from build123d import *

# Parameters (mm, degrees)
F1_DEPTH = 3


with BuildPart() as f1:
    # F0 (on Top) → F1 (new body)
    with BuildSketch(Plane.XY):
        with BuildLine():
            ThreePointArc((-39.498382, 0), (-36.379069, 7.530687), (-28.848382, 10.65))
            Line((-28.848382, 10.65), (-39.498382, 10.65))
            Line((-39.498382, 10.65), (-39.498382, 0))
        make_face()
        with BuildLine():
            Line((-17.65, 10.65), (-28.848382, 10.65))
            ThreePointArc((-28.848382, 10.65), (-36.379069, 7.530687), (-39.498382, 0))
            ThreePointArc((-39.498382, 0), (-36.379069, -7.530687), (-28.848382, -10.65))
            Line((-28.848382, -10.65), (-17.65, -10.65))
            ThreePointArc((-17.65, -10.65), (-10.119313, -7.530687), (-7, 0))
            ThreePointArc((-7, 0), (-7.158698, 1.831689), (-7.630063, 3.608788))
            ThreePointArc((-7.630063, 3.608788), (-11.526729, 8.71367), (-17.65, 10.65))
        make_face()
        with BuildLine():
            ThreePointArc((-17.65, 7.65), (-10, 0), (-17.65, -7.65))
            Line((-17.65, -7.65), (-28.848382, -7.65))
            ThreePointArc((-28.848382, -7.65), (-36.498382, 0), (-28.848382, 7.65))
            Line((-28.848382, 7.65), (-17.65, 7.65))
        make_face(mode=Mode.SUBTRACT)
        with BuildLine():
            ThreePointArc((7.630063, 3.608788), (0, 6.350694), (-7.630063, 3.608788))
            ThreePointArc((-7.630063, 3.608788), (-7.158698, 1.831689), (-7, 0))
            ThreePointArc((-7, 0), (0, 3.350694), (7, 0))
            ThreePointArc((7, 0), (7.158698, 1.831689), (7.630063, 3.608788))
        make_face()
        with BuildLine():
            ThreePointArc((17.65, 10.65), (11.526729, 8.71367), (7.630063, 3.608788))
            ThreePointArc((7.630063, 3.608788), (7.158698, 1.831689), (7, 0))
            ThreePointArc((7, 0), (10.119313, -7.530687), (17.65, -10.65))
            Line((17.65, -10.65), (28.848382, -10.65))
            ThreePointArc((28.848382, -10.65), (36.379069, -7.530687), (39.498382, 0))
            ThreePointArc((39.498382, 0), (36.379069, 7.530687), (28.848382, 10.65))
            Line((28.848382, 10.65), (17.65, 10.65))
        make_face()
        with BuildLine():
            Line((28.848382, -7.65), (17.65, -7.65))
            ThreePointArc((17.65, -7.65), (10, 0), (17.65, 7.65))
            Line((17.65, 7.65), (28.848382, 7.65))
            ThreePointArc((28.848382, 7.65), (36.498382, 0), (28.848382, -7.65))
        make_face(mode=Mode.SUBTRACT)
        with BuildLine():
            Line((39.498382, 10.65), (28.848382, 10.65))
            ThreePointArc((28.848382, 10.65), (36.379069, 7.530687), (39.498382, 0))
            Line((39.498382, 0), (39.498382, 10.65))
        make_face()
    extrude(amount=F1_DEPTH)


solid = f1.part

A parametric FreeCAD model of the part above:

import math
import FreeCAD as App
import Part
import Sketcher
from FreeCAD import Vector
Q = App.Units.Quantity

doc = App.newDocument("Part")
body = doc.addObject("PartDesign::Body", "Body")

# Sketch on XY plane
sketch1 = body.newObject("Sketcher::SketchObject", "Sketch")
sketch1.AttachmentSupport = (doc.getObject("XY_Plane"), [""])
sketch1.MapMode = "FlatFace"
sketch1.addGeometry(Part.LineSegment(Vector(-39, 11, 0), Vector(-39, 0, 0)), False)
sketch1.addGeometry(Part.ArcOfCircle(Part.Circle(Vector(-29, 0, 0), Vector(0, 0, 1), 11), math.radians(-180), math.radians(-90)), False)
sketch1.addGeometry(Part.LineSegment(Vector(-29, -11, 0), Vector(-18, -11, 0)), False)
sketch1.addGeometry(Part.ArcOfCircle(Part.Circle(Vector(-18, 0, 0), Vector(0, 0, 1), 11), math.radians(-90), math.radians(0)), False)
sketch1.addGeometry(Part.ArcOfCircle(Part.Circle(Vector(0, -6, 0), Vector(0, 0, 1), 9), math.radians(39), math.radians(141)), False)
sketch1.addGeometry(Part.ArcOfCircle(Part.Circle(Vector(18, 0, 0), Vector(0, 0, 1), 11), math.radians(-180), math.radians(-90)), False)
sketch1.addGeometry(Part.LineSegment(Vector(18, -11, 0), Vector(29, -11, 0)), False)
sketch1.addGeometry(Part.ArcOfCircle(Part.Circle(Vector(29, 0, 0), Vector(0, 0, 1), 11), math.radians(-90), math.radians(0)), False)
sketch1.addGeometry(Part.LineSegment(Vector(39, 0, 0), Vector(39, 11, 0)), False)
sketch1.addGeometry(Part.LineSegment(Vector(39, 11, 0), Vector(18, 11, 0)), False)
sketch1.addGeometry(Part.ArcOfCircle(Part.Circle(Vector(18, 0, 0), Vector(0, 0, 1), 11), math.radians(90), math.radians(160)), False)
sketch1.addGeometry(Part.ArcOfCircle(Part.Circle(Vector(0, -6, 0), Vector(0, 0, 1), 12), math.radians(50), math.radians(130)), False)
sketch1.addGeometry(Part.ArcOfCircle(Part.Circle(Vector(-18, 0, 0), Vector(0, 0, 1), 11), math.radians(20), math.radians(90)), False)
sketch1.addGeometry(Part.LineSegment(Vector(-18, 11, 0), Vector(-39, 11, 0)), False)
sketch1.addGeometry(Part.LineSegment(Vector(-29, 8, 0), Vector(-18, 8, 0)), False)
sketch1.addGeometry(Part.ArcOfCircle(Part.Circle(Vector(-18, 0, 0), Vector(0, 0, 1), 8), math.radians(-90), math.radians(90)), False)
sketch1.addGeometry(Part.LineSegment(Vector(-18, -8, 0), Vector(-29, -8, 0)), False)
sketch1.addGeometry(Part.ArcOfCircle(Part.Circle(Vector(-29, 0, 0), Vector(0, 0, 1), 8), math.radians(90), math.radians(270)), False)
sketch1.addGeometry(Part.ArcOfCircle(Part.Circle(Vector(29, 0, 0), Vector(0, 0, 1), 8), math.radians(-90), math.radians(90)), False)
sketch1.addGeometry(Part.LineSegment(Vector(29, -8, 0), Vector(18, -8, 0)), False)
sketch1.addGeometry(Part.ArcOfCircle(Part.Circle(Vector(18, 0, 0), Vector(0, 0, 1), 8), math.radians(90), math.radians(270)), False)
sketch1.addGeometry(Part.LineSegment(Vector(18, 8, 0), Vector(29, 8, 0)), False)
sketch1.addConstraint(Sketcher.Constraint("Tangent", 0, 2, 1, 1))
sketch1.addConstraint(Sketcher.Constraint("Tangent", 1, 2, 2, 1))
sketch1.addConstraint(Sketcher.Constraint("Tangent", 2, 2, 3, 1))
sketch1.addConstraint(Sketcher.Constraint("Coincident", 3, 2, 4, 2))
sketch1.addConstraint(Sketcher.Constraint("Coincident", 4, 1, 5, 1))
sketch1.addConstraint(Sketcher.Constraint("Tangent", 5, 2, 6, 1))
sketch1.addConstraint(Sketcher.Constraint("Tangent", 6, 2, 7, 1))
sketch1.addConstraint(Sketcher.Constraint("Tangent", 7, 2, 8, 1))
sketch1.addConstraint(Sketcher.Constraint("Coincident", 8, 2, 9, 1))
sketch1.addConstraint(Sketcher.Constraint("Tangent", 9, 2, 10, 1))
sketch1.addConstraint(Sketcher.Constraint("Coincident", 10, 2, 11, 1))
sketch1.addConstraint(Sketcher.Constraint("Coincident", 11, 2, 12, 1))
sketch1.addConstraint(Sketcher.Constraint("Tangent", 12, 2, 13, 1))
sketch1.addConstraint(Sketcher.Constraint("Coincident", 13, 2, 0, 1))
sketch1.addConstraint(Sketcher.Constraint("Tangent", 14, 2, 15, 2))
sketch1.addConstraint(Sketcher.Constraint("Tangent", 15, 1, 16, 1))
sketch1.addConstraint(Sketcher.Constraint("Tangent", 16, 2, 17, 2))
sketch1.addConstraint(Sketcher.Constraint("Tangent", 17, 1, 14, 1))
sketch1.addConstraint(Sketcher.Constraint("Tangent", 18, 1, 19, 1))
sketch1.addConstraint(Sketcher.Constraint("Tangent", 19, 2, 20, 2))
sketch1.addConstraint(Sketcher.Constraint("Tangent", 20, 1, 21, 1))
sketch1.addConstraint(Sketcher.Constraint("Tangent", 21, 2, 18, 2))
sketch1.addConstraint(Sketcher.Constraint("Vertical", 0))
sketch1.addConstraint(Sketcher.Constraint("Horizontal", 2))
sketch1.addConstraint(Sketcher.Constraint("Horizontal", 6))
sketch1.addConstraint(Sketcher.Constraint("Vertical", 8))
sketch1.addConstraint(Sketcher.Constraint("Horizontal", 9))
sketch1.addConstraint(Sketcher.Constraint("Horizontal", 13))
sketch1.addConstraint(Sketcher.Constraint("Horizontal", 14))
sketch1.addConstraint(Sketcher.Constraint("Horizontal", 16))
sketch1.addConstraint(Sketcher.Constraint("Horizontal", 19))
sketch1.addConstraint(Sketcher.Constraint("Horizontal", 21))
sketch1.addConstraint(Sketcher.Constraint("Coincident", 10, 3, 5, 3))
sketch1.addConstraint(Sketcher.Constraint("Coincident", 11, 3, 4, 3))
sketch1.addConstraint(Sketcher.Constraint("Coincident", 12, 3, 3, 3))
sketch1.addConstraint(Sketcher.Constraint("Coincident", 15, 3, 3, 3))
sketch1.addConstraint(Sketcher.Constraint("Coincident", 17, 3, 1, 3))
sketch1.addConstraint(Sketcher.Constraint("Coincident", 18, 3, 7, 3))
sketch1.addConstraint(Sketcher.Constraint("Coincident", 20, 3, 5, 3))
sketch1.addConstraint(Sketcher.Constraint("Equal", 3, 5))
sketch1.addConstraint(Sketcher.Constraint("Equal", 7, 10))
sketch1.addConstraint(Sketcher.Constraint("Equal", 10, 12))
sketch1.addConstraint(Sketcher.Constraint("Equal", 17, 18))
sketch1.addConstraint(Sketcher.Constraint("Symmetric", 3, 3, 5, 3, -1, 1))
sketch1.addConstraint(Sketcher.Constraint("Symmetric", 1, 3, 7, 3, -2))
sketch1.addConstraint(Sketcher.Constraint("PointOnObject", 4, 3, -2))
sketch1.addConstraint(Sketcher.Constraint("PointOnObject", 3, 2, -1))
sketch1.addConstraint(Sketcher.Constraint("Radius", 1, Q("10.650001 mm")))
sketch1.addConstraint(Sketcher.Constraint("Radius", 15, Q("7.65 mm")))
sketch1.addConstraint(Sketcher.Constraint("DistanceX", 3, 2, -1, 1, Q("7 mm")))
sketch1.addConstraint(Sketcher.Constraint("Radius", 4, Q("8.987265 mm")))
sketch1.addConstraint(Sketcher.Constraint("Radius", 11, Q("11.987265 mm")))
sketch1.addConstraint(Sketcher.Constraint("DistanceX", 2, 1, 2, 2, Q("11.198382 mm")))
pad1 = body.newObject("PartDesign::Pad", "Pad")
pad1.Profile = sketch1
pad1.Length = 3

doc.recompute()
